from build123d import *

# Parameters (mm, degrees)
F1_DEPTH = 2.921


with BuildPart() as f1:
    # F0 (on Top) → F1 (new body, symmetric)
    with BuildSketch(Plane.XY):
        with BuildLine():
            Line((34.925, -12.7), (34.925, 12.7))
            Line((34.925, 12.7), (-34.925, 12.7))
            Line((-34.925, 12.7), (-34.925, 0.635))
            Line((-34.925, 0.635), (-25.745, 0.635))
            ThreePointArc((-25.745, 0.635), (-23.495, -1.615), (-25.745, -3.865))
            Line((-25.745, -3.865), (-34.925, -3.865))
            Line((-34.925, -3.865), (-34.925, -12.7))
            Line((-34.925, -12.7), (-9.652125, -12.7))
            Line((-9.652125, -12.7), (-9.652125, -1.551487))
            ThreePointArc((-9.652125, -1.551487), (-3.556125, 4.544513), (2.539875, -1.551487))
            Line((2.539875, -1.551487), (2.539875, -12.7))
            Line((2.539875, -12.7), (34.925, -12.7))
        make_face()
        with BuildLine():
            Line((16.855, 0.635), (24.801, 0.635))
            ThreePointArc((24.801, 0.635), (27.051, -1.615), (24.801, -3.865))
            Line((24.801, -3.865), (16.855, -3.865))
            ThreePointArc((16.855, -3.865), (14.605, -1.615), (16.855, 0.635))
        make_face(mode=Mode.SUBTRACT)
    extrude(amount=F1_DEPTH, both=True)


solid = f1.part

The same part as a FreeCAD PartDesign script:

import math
import FreeCAD as App
import Part
import Sketcher
Q = App.Units.Quantity

doc = App.newDocument("Part")
body = doc.addObject("PartDesign::Body", "Body")

sketch1 = doc.addObject("Sketcher::SketchObject", "Sketch")
body.addObject(sketch1)
sketch1.AttachmentSupport = (doc.XY_Plane, [""])
sketch1.MapMode = "FlatFace"
sketch1.addGeometry([
    Part.LineSegment(App.Vector(34.9, -12.7, 0), App.Vector(34.9, 12.7, 0)),
    Part.LineSegment(App.Vector(34.9, 12.7, 0), App.Vector(-34.9, 12.7, 0)),
    Part.LineSegment(App.Vector(-34.9, 12.7, 0), App.Vector(-34.9, 0.6, 0)),
    Part.LineSegment(App.Vector(-34.9, 0.6, 0), App.Vector(-25.7, 0.6, 0)),
    Part.ArcOfCircle(Part.Circle(App.Vector(-25.7, -1.6, 0), App.Vector(0, 0, 1), 2.2), math.radians(-90), math.radians(90)),
    Part.LineSegment(App.Vector(-25.7, -3.9, 0), App.Vector(-34.9, -3.9, 0)),
    Part.LineSegment(App.Vector(-34.9, -3.9, 0), App.Vector(-34.9, -12.7, 0)),
    Part.LineSegment(App.Vector(-34.9, -12.7, 0), App.Vector(-9.7, -12.7, 0)),
    Part.LineSegment(App.Vector(-9.7, -12.7, 0), App.Vector(-9.7, -1.6, 0)),
    Part.ArcOfCircle(Part.Circle(App.Vector(-3.6, -1.6, 0), App.Vector(0, 0, 1), 6.1), math.radians(0), math.radians(180)),
    Part.LineSegment(App.Vector(2.5, -1.6, 0), App.Vector(2.5, -12.7, 0)),
    Part.LineSegment(App.Vector(2.5, -12.7, 0), App.Vector(34.9, -12.7, 0)),
    Part.ArcOfCircle(Part.Circle(App.Vector(16.9, -1.6, 0), App.Vector(0, 0, 1), 2.2), math.radians(90), math.radians(270)),
    Part.LineSegment(App.Vector(16.9, 0.6, 0), App.Vector(24.8, 0.6, 0)),
    Part.ArcOfCircle(Part.Circle(App.Vector(24.8, -1.6, 0), App.Vector(0, 0, 1), 2.2), math.radians(-90), math.radians(90)),
    Part.LineSegment(App.Vector(24.8, -3.9, 0), App.Vector(16.9, -3.9, 0)),
], False)
sketch1.addConstraint([
    Sketcher.Constraint("Coincident", 0, 2, 1, 1),
    Sketcher.Constraint("Coincident", 1, 2, 2, 1),
    Sketcher.Constraint("Coincident", 2, 2, 3, 1),
    Sketcher.Constraint("Tangent", 3, 2, 4, 2),
    Sketcher.Constraint("Tangent", 4, 1, 5, 1),
    Sketcher.Constraint("Coincident", 5, 2, 6, 1),
    Sketcher.Constraint("Coincident", 6, 2, 7, 1),
    Sketcher.Constraint("Coincident", 7, 2, 8, 1),
    Sketcher.Constraint("Tangent", 8, 2, 9, 2),
    Sketcher.Constraint("Tangent", 9, 1, 10, 1),
    Sketcher.Constraint("Coincident", 10, 2, 11, 1),
    Sketcher.Constraint("Coincident", 11, 2, 0, 1),
    Sketcher.Constraint("Tangent", 12, 1, 13, 1),
    Sketcher.Constraint("Tangent", 13, 2, 14, 2),
    Sketcher.Constraint("Tangent", 14, 1, 15, 1),
    Sketcher.Constraint("Tangent", 15, 2, 12, 2),
    Sketcher.Constraint("Vertical", 0),
    Sketcher.Constraint("Horizontal", 1),
    Sketcher.Constraint("Vertical", 2),
    Sketcher.Constraint("Horizontal", 3),
    Sketcher.Constraint("Horizontal", 5),
    Sketcher.Constraint("Vertical", 6),
    Sketcher.Constraint("Horizontal", 7),
    Sketcher.Constraint("Vertical", 8),
    Sketcher.Constraint("Vertical", 10),
    Sketcher.Constraint("Horizontal", 11),
    Sketcher.Constraint("Horizontal", 13),
    Sketcher.Constraint("Horizontal", 15),
    Sketcher.Constraint("Equal", 4, 12),
    Sketcher.Constraint("Symmetric", 0, 2, 6, 2, -1, 1),
    Sketcher.Constraint("Symmetric", 1, 2, 11, 2, -1, 1),
    Sketcher.Constraint("Horizontal", 4, 3, 12, 3),
    Sketcher.Constraint("DistanceY", 0, 1, 0, 2, Q("1 in")),
    Sketcher.Constraint("Radius", 9, Q("0.24 in")),
    Sketcher.Constraint("DistanceX", 1, 2, 1, 1, Q("2.75 in")),
    Sketcher.Constraint("DistanceY", 2, 2, 2, 1, Q("0.475 in")),
    Sketcher.Constraint("Radius", 4, Q("2.25 mm")),
    Sketcher.Constraint("DistanceX", 4, 3, 14, 3, Q("1.99 in")),
    Sketcher.Constraint("DistanceX", 3, 1, 3, 2, Q("9.18 mm")),
    Sketcher.Constraint("DistanceX", 13, 1, 13, 2, Q("7.946 mm")),
    Sketcher.Constraint("DistanceX", 7, 1, 7, 2, Q("25.272875 mm")),
    Sketcher.Constraint("DistanceY", 8, 1, 8, 2, Q("11.148513 mm")),
])
pad1 = doc.addObject("PartDesign::Pad", "Pad")
body.addObject(pad1)
pad1.Profile = sketch1
pad1.Length = Q("0.23 in")
pad1.Midplane = True

doc.recompute()
